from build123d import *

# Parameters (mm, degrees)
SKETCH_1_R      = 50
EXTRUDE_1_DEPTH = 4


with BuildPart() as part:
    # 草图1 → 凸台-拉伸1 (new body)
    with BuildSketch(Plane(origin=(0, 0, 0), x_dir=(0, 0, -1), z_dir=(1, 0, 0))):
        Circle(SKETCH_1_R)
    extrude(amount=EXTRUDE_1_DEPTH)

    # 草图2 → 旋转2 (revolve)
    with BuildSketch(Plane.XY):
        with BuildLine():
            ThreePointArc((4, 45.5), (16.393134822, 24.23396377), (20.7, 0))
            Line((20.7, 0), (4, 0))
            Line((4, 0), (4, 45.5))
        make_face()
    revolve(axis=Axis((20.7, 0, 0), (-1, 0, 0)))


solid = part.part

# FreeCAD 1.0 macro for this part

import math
import FreeCAD as App
import Part
import Sketcher
from FreeCAD import Vector

doc = App.newDocument("Part")
body = doc.addObject("PartDesign::Body", "Body")

sketch1 = body.newObject("Sketcher::SketchObject", "Sketch")
sketch1.AttachmentSupport = (doc.getObject("YZ_Plane"), [""])
sketch1.MapMode = "FlatFace"
sketch1.addGeometry(Part.Circle(Vector(0, 0, 0), Vector(0, 0, 1), 50), False)
sketch1.addConstraint([
    Sketcher.Constraint("Coincident", 0, 3, -1, 1),
    Sketcher.Constraint("Diameter", 0, 100.0),
])
pad1 = body.newObject("PartDesign::Pad", "Pad")
pad1.Profile = sketch1
pad1.Length = 4

sketch2 = body.newObject("Sketcher::SketchObject", "Sketch001")
sketch2.AttachmentSupport = (doc.getObject("XY_Plane"), [""])
sketch2.MapMode = "FlatFace"
sketch2.addGeometry([
    Part.ArcOfCircle(Part.Circle(Vector(-50, 0, 0), Vector(0, 0, 1), 70), math.radians(0), math.radians(40)),
    Part.LineSegment(Vector(4, 46, 0), Vector(4, 0, 0)),
    Part.LineSegment(Vector(4, 0, 0), Vector(21, 0, 0)),
], False)
sketch2.addConstraint([
    Sketcher.Constraint("Coincident", 0, 2, 1, 1),
    Sketcher.Constraint("Coincident", 1, 2, 2, 1),
    Sketcher.Constraint("Coincident", 2, 2, 0, 1),
    Sketcher.Constraint("Vertical", 1),
    Sketcher.Constraint("Horizontal", 2),
    Sketcher.Constraint("PointOnObject", 0, 3, -1),
    Sketcher.Constraint("PointOnObject", 1, 2, -1),
    Sketcher.Constraint("DistanceX", 2, 1, 2, 2, 16.7),
    Sketcher.Constraint("DistanceY", 1, 2, 1, 1, 45.5),
    Sketcher.Constraint("DistanceX", -1, 1, 0, 2, 4.0),
])
revolution = body.newObject("PartDesign::Revolution", "Revolution")
revolution.Profile = sketch2
revolution.ReferenceAxis = (sketch2, ["H_Axis"])
revolution.Angle = 360

doc.recompute()
